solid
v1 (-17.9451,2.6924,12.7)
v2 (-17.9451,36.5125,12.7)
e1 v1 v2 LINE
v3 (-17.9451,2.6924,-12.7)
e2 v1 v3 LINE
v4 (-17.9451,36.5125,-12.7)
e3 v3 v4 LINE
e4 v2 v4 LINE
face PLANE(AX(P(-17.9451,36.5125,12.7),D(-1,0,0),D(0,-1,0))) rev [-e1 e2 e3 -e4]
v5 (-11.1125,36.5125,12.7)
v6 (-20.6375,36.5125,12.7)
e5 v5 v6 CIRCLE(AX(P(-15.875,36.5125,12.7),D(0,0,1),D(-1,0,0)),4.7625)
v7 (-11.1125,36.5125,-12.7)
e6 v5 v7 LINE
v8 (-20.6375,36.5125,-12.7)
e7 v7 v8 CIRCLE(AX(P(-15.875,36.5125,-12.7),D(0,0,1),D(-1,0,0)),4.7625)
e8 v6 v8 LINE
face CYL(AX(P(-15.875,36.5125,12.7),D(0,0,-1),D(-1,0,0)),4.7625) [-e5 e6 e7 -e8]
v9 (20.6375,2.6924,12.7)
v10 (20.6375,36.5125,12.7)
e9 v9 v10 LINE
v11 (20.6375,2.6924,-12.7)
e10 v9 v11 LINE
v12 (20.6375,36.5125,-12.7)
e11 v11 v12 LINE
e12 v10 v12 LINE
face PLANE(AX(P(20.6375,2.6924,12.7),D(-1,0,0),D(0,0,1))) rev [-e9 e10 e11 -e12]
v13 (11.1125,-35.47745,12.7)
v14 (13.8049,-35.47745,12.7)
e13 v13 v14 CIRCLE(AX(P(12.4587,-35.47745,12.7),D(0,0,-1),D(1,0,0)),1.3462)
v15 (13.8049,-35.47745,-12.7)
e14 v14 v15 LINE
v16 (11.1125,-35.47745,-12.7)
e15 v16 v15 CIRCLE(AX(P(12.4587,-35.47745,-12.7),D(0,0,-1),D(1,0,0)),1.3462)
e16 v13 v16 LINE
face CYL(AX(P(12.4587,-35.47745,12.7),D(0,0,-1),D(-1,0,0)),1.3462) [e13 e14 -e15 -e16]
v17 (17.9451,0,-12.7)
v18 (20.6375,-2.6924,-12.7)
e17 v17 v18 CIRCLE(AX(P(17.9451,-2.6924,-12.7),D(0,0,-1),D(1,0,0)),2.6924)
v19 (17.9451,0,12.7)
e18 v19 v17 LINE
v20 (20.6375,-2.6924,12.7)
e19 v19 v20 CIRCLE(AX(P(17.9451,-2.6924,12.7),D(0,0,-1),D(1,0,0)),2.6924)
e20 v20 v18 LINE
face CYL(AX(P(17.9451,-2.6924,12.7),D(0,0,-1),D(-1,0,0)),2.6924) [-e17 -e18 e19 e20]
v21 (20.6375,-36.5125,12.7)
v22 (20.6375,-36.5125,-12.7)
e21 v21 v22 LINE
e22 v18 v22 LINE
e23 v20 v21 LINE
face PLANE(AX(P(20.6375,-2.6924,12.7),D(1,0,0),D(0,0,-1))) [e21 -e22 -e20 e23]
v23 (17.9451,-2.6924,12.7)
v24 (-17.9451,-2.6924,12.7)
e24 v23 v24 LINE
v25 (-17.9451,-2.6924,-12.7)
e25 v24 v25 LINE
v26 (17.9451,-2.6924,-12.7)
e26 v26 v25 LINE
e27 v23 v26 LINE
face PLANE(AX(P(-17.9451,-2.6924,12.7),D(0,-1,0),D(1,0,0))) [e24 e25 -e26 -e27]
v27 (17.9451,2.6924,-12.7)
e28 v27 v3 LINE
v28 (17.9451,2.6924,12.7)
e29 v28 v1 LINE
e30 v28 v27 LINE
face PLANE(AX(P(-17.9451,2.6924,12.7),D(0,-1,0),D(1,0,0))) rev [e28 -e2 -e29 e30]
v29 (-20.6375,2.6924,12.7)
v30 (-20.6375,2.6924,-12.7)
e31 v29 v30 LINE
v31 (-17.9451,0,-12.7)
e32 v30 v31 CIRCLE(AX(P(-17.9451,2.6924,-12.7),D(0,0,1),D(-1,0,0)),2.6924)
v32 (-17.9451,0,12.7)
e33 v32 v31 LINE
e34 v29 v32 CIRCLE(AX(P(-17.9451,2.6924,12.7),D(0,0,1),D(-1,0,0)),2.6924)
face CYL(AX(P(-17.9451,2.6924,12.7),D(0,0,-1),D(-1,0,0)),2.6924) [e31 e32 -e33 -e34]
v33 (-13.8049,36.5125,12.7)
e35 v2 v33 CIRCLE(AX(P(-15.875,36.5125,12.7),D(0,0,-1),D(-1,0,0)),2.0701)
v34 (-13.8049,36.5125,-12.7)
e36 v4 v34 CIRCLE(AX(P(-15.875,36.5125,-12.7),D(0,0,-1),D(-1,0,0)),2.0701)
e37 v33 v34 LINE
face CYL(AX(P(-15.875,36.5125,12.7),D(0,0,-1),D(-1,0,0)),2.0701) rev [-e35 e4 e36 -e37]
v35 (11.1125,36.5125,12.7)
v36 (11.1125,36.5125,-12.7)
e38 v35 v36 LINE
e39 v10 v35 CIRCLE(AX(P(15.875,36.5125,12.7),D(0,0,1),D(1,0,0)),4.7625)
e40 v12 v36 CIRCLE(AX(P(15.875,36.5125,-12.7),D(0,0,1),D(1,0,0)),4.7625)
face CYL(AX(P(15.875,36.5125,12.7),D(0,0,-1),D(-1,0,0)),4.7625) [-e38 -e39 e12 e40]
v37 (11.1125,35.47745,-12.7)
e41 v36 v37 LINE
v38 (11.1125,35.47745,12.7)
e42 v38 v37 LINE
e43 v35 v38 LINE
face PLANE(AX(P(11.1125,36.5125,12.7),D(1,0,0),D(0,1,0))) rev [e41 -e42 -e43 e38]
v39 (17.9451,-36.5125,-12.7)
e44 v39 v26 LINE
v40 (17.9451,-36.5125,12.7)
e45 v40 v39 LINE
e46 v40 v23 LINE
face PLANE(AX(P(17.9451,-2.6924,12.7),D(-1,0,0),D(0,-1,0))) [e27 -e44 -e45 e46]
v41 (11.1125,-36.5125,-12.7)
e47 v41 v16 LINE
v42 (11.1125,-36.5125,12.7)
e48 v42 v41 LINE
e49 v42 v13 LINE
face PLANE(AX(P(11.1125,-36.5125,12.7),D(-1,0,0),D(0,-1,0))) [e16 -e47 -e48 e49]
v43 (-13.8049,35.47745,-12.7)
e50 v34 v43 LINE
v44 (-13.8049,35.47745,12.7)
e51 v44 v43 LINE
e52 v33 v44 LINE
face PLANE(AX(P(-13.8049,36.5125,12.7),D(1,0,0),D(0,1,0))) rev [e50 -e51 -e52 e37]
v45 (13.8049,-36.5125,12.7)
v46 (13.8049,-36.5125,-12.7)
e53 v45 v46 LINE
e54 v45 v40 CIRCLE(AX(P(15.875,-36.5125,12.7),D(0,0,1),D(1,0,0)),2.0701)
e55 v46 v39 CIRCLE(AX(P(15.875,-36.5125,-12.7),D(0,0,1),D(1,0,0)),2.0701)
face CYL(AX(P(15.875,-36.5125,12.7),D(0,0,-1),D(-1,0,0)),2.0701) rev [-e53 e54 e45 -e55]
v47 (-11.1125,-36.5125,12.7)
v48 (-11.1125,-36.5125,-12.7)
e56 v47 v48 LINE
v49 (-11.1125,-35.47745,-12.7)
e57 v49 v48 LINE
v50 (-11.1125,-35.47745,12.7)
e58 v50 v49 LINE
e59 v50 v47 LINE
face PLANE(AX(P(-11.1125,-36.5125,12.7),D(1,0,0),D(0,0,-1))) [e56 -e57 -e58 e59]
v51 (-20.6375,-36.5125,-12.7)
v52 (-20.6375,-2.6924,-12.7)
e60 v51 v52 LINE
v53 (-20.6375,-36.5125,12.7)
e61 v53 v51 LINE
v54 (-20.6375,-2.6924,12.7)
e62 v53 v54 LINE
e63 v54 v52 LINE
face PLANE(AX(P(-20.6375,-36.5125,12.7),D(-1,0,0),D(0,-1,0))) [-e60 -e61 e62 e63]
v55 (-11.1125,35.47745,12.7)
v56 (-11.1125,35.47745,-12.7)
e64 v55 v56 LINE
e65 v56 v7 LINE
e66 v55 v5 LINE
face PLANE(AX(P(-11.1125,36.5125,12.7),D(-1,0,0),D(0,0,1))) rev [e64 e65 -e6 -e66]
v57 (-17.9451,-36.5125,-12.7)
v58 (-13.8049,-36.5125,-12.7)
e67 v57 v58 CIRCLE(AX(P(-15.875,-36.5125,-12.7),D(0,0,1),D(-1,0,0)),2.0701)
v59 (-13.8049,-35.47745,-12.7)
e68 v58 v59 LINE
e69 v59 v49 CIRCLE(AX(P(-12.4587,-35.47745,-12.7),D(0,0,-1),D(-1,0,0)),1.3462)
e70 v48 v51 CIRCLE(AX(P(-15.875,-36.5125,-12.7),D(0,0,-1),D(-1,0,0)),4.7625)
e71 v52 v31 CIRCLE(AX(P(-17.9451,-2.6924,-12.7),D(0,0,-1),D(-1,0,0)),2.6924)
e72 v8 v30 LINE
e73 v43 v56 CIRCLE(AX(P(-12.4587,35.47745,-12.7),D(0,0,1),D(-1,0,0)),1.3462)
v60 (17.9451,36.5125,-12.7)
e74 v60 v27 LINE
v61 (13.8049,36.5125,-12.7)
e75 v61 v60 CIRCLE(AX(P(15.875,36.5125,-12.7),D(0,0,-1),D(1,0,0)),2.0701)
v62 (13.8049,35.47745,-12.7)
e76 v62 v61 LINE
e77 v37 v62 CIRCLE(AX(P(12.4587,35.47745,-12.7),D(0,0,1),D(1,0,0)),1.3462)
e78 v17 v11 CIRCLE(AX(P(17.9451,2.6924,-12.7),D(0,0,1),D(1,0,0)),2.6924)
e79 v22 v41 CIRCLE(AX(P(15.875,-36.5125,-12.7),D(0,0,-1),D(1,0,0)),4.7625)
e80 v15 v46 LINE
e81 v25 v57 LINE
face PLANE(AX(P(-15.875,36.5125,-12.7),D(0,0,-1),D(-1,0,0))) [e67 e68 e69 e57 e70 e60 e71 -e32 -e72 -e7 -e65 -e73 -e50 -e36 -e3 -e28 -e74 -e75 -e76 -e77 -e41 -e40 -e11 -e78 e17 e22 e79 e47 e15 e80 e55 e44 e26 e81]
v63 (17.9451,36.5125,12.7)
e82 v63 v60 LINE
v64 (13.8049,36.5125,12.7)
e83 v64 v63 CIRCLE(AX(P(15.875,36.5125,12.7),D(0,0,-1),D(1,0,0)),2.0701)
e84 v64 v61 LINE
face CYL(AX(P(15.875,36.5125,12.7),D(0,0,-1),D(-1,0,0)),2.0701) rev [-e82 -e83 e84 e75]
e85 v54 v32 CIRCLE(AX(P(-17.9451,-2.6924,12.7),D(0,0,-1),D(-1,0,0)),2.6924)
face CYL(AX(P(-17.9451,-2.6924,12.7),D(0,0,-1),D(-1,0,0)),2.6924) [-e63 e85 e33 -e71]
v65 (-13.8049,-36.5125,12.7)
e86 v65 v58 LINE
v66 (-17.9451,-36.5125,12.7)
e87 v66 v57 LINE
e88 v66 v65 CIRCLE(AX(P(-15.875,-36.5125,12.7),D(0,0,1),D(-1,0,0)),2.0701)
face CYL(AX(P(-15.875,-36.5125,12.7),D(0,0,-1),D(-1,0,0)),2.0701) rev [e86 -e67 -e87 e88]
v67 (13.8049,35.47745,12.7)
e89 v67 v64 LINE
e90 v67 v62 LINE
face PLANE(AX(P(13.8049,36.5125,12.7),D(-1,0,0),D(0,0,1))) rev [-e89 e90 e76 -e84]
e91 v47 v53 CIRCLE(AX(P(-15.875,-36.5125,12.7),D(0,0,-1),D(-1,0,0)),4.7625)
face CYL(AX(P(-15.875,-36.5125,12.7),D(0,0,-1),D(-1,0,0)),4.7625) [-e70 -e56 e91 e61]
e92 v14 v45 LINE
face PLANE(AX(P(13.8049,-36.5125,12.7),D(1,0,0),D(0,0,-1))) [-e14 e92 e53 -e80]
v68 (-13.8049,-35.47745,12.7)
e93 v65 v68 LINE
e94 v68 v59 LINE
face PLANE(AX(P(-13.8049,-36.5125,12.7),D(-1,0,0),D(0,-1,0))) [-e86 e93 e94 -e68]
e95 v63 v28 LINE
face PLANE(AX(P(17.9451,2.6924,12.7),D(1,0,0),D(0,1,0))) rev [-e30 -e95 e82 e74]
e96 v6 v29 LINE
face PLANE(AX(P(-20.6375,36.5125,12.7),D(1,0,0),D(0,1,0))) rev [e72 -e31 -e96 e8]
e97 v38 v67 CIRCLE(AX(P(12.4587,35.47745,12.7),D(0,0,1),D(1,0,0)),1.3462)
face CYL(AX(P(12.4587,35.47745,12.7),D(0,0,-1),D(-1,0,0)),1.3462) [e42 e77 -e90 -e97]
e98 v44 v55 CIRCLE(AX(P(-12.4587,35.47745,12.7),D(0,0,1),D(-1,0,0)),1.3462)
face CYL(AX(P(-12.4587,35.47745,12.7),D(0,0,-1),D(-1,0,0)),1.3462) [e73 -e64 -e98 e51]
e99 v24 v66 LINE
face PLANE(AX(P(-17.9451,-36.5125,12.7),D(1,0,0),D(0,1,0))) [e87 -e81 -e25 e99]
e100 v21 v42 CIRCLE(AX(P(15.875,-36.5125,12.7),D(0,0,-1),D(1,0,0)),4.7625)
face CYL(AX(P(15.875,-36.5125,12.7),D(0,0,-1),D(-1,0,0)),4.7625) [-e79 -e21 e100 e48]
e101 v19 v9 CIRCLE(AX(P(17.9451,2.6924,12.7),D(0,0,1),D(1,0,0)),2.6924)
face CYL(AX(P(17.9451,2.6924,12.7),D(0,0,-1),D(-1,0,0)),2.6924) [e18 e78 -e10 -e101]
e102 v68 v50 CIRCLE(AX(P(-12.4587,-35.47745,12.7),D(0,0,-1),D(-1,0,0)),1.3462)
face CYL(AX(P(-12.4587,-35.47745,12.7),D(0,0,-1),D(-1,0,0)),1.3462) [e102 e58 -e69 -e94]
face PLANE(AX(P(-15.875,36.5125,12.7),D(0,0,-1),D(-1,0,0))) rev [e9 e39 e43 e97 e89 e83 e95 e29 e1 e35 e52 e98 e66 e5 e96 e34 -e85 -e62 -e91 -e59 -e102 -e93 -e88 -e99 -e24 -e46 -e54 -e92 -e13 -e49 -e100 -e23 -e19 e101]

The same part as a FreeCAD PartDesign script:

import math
import FreeCAD as App
import Part
import Sketcher

V = App.Vector
Q = App.Units.Quantity

doc = App.newDocument("Part")
params = doc.addObject("Spreadsheet::Sheet", "Params")
for row, (alias, value) in enumerate([
    ("sketch1_radius", "0.106 in"),
    ("sketch1_radius2", "0.1875 in"),
    ("sketch1_width", "1.413 in"),
    ("pad1_length", "1 in"),
], start=1):
    params.set(f"A{row}", alias)
    params.set(f"B{row}", "=" + value)
    params.setAlias(f"B{row}", alias)

body = doc.addObject("PartDesign::Body", "Body")

sketch1 = body.newObject("Sketcher::SketchObject", "Sketch")
sketch1.AttachmentSupport = (doc.getObject("XY_Plane"), [""])
sketch1.MapMode = "FlatFace"
sketch1.addGeometry(Part.LineSegment(V(-20.6, 36.5, 0), V(-20.6, 2.7, 0)), False)
sketch1.addGeometry(Part.ArcOfCircle(Part.Circle(V(-17.9, 2.7, 0), V(0, 0, 1), 2.7), math.radians(180), math.radians(270)), False)
sketch1.addGeometry(Part.LineSegment(V(-17.9, 0, 0), V(17.9, 0, 0)), False)
sketch1.addGeometry(Part.ArcOfCircle(Part.Circle(V(17.9, 2.7, 0), V(0, 0, 1), 2.7), math.radians(-90), math.radians(0)), False)
sketch1.addGeometry(Part.LineSegment(V(20.6, 2.7, 0), V(20.6, 36.5, 0)), False)
sketch1.addGeometry(Part.ArcOfCircle(Part.Circle(V(15.9, 36.5, 0), V(0, 0, 1), 4.8), math.radians(0), math.radians(180)), False)
sketch1.addGeometry(Part.LineSegment(V(11.1, 36.5, 0), V(11.1, 35.5, 0)), False)
sketch1.addGeometry(Part.ArcOfCircle(Part.Circle(V(12.5, 35.5, 0), V(0, 0, 1), 1.3), math.radians(180), math.radians(360)), False)
sketch1.addGeometry(Part.LineSegment(V(13.8, 35.5, 0), V(13.8, 36.5, 0)), False)
sketch1.addGeometry(Part.ArcOfCircle(Part.Circle(V(15.9, 36.5, 0), V(0, 0, 1), 2.1), math.radians(0), math.radians(180)), False)
sketch1.addGeometry(Part.LineSegment(V(17.9, 36.5, 0), V(17.9, 2.7, 0)), False)
sketch1.addGeometry(Part.LineSegment(V(17.9, 2.7, 0), V(-17.9, 2.7, 0)), False)
sketch1.addGeometry(Part.LineSegment(V(-17.9, 2.7, 0), V(-17.9, 36.5, 0)), False)
sketch1.addGeometry(Part.ArcOfCircle(Part.Circle(V(-15.9, 36.5, 0), V(0, 0, 1), 2.1), math.radians(0), math.radians(180)), False)
sketch1.addGeometry(Part.LineSegment(V(-13.8, 36.5, 0), V(-13.8, 35.5, 0)), False)
sketch1.addGeometry(Part.ArcOfCircle(Part.Circle(V(-12.5, 35.5, 0), V(0, 0, 1), 1.3), math.radians(180), math.radians(360)), False)
sketch1.addGeometry(Part.LineSegment(V(-11.1, 35.5, 0), V(-11.1, 36.5, 0)), False)
sketch1.addGeometry(Part.ArcOfCircle(Part.Circle(V(-15.9, 36.5, 0), V(0, 0, 1), 4.8), math.radians(0), math.radians(180)), False)
sketch1.addConstraint(Sketcher.Constraint("Tangent", 0, 2, 1, 1))
sketch1.addConstraint(Sketcher.Constraint("Tangent", 1, 2, 2, 1))
sketch1.addConstraint(Sketcher.Constraint("Tangent", 2, 2, 3, 1))
sketch1.addConstraint(Sketcher.Constraint("Tangent", 3, 2, 4, 1))
sketch1.addConstraint(Sketcher.Constraint("Tangent", 4, 2, 5, 1))
sketch1.addConstraint(Sketcher.Constraint("Tangent", 5, 2, 6, 1))
sketch1.addConstraint(Sketcher.Constraint("Tangent", 6, 2, 7, 1))
sketch1.addConstraint(Sketcher.Constraint("Tangent", 7, 2, 8, 1))
sketch1.addConstraint(Sketcher.Constraint("Tangent", 8, 2, 9, 2))
sketch1.addConstraint(Sketcher.Constraint("Tangent", 9, 1, 10, 1))
sketch1.addConstraint(Sketcher.Constraint("Coincident", 10, 2, 11, 1))
sketch1.addConstraint(Sketcher.Constraint("Coincident", 11, 2, 12, 1))
sketch1.addConstraint(Sketcher.Constraint("Tangent", 12, 2, 13, 2))
sketch1.addConstraint(Sketcher.Constraint("Tangent", 13, 1, 14, 1))
sketch1.addConstraint(Sketcher.Constraint("Tangent", 14, 2, 15, 1))
sketch1.addConstraint(Sketcher.Constraint("Tangent", 15, 2, 16, 1))
sketch1.addConstraint(Sketcher.Constraint("Tangent", 16, 2, 17, 1))
sketch1.addConstraint(Sketcher.Constraint("Tangent", 17, 2, 0, 1))
sketch1.addConstraint(Sketcher.Constraint("Vertical", 0))
sketch1.addConstraint(Sketcher.Constraint("Horizontal", 2))
sketch1.addConstraint(Sketcher.Constraint("Vertical", 4))
sketch1.addConstraint(Sketcher.Constraint("Vertical", 6))
sketch1.addConstraint(Sketcher.Constraint("Vertical", 8))
sketch1.addConstraint(Sketcher.Constraint("Vertical", 10))
sketch1.addConstraint(Sketcher.Constraint("Horizontal", 11))
sketch1.addConstraint(Sketcher.Constraint("Vertical", 12))
sketch1.addConstraint(Sketcher.Constraint("Vertical", 14))
sketch1.addConstraint(Sketcher.Constraint("Vertical", 16))
sketch1.addConstraint(Sketcher.Constraint("Coincident", 9, 3, 5, 3))
sketch1.addConstraint(Sketcher.Constraint("Coincident", 17, 3, 13, 3))
sketch1.addConstraint(Sketcher.Constraint("Coincident", 10, 2, 3, 3))
sketch1.addConstraint(Sketcher.Constraint("Coincident", 11, 2, 1, 3))
sketch1.addConstraint(Sketcher.Constraint("Equal", 9, 13))
sketch1.addConstraint(Sketcher.Constraint("Symmetric", 1, 2, 2, 2, -1, 1))
sketch1.addConstraint(Sketcher.Constraint("Horizontal", 9, 3, 13, 3))
sketch1.addConstraint(Sketcher.Constraint("Horizontal", 7, 3, 15, 3))
sketch1.addConstraint(Sketcher.Constraint("Radius", 1, Q("0.106 in")))
sketch1.addConstraint(Sketcher.Constraint("Radius", 5, Q("0.1875 in")))
sketch1.addConstraint(Sketcher.Constraint("DistanceX", 2, 1, 2, 2, Q("1.413 in")))
sketch1.addConstraint(Sketcher.Constraint("DistanceY", 0, 2, 0, 1, Q("1.3315 in")))
sketch1.addConstraint(Sketcher.Constraint("DistanceY", 6, 2, 6, 1, Q("1.03505 mm")))
sketch1.setExpression("Constraints[36]", "Params.sketch1_radius")
sketch1.setExpression("Constraints[37]", "Params.sketch1_radius2")
sketch1.setExpression("Constraints[38]", "Params.sketch1_width")
pad1 = body.newObject("PartDesign::Pad", "Pad")
pad1.Profile = sketch1
pad1.setExpression("Length", "Params.pad1_length")
pad1.Midplane = True
doc.recompute()

mirrored = body.newObject("PartDesign::Mirrored", "Mirrored")
mirrored.Originals = [pad1]
mirrored.MirrorPlane = (doc.getObject("XZ_Plane"), [""])
body.Tip = mirrored

doc.recompute()
